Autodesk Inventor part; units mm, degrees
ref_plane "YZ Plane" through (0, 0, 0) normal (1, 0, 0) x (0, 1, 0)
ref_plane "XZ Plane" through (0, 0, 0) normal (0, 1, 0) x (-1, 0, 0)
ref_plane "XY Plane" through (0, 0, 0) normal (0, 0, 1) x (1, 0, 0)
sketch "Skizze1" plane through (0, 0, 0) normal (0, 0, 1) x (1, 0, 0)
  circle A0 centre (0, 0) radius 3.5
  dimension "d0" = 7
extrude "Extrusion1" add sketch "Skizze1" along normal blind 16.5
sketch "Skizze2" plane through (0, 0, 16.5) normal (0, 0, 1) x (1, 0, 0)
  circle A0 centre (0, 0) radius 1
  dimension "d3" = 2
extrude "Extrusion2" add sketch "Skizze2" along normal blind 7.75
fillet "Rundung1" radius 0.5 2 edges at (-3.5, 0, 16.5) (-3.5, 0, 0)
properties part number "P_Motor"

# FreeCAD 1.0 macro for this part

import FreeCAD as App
import Part
import Sketcher

V = App.Vector
Q = App.Units.Quantity


def edges_at(feature, points):
    """Names of the edges that pass closest to the given points."""
    edges = feature.Shape.Edges
    near = lambda p: min(range(len(edges)), key=lambda i: edges[i].distToShape(Part.Vertex(*p))[0])
    return sorted({f"Edge{near(p) + 1}" for p in points})

doc = App.newDocument("Part")
params = doc.addObject("Spreadsheet::Sheet", "Params")
for row, (alias, value) in enumerate([
    ("sketch1_diameter", "7 mm"),
    ("pad1_length", "16.5 mm"),
    ("sketch2_diameter", "2 mm"),
    ("pad2_length", "7.75 mm"),
    ("fillet_radius", "0.5 mm"),
], start=1):
    params.set(f"A{row}", alias)
    params.set(f"B{row}", "=" + value)
    params.setAlias(f"B{row}", alias)

body = doc.addObject("PartDesign::Body", "Body")

# Sketch on XY plane
sketch1 = body.newObject("Sketcher::SketchObject", "Sketch")
sketch1.AttachmentSupport = (doc.getObject("XY_Plane"), [""])
sketch1.MapMode = "FlatFace"
sketch1.addGeometry(Part.Circle(V(0, 0, 0), V(0, 0, 1), 3.5), False)
sketch1.addConstraint([
    Sketcher.Constraint("Coincident", 0, 3, -1, 1),
    Sketcher.Constraint("Diameter", 0, Q("7 mm")),
])
sketch1.setExpression("Constraints[1]", "Params.sketch1_diameter")
pad1 = body.newObject("PartDesign::Pad", "Pad")
pad1.Profile = sketch1
pad1.setExpression("Length", "Params.pad1_length")

# Sketch on XY plane
sketch2 = body.newObject("Sketcher::SketchObject", "Sketch001")
sketch2.AttachmentSupport = (doc.getObject("XY_Plane"), [""])
sketch2.MapMode = "FlatFace"
sketch2.AttachmentOffset = App.Placement(V(0, 0, 16.5), App.Rotation())
sketch2.addGeometry(Part.Circle(V(0, 0, 0), V(0, 0, 1), 1), False)
sketch2.addConstraint([
    Sketcher.Constraint("Coincident", 0, 3, -1, 1),
    Sketcher.Constraint("Diameter", 0, Q("2 mm")),
])
sketch2.setExpression("Constraints[1]", "Params.sketch2_diameter")
pad2 = body.newObject("PartDesign::Pad", "Pad001")
pad2.Profile = sketch2
pad2.setExpression("Length", "Params.pad2_length")
doc.recompute()

fillet = body.newObject("PartDesign::Fillet", "Fillet")
fillet.Base = (pad2, edges_at(pad2, [(-3.5, 0, 16.5), (-3.5, 0, 0)]))
fillet.setExpression("Radius", "Params.fillet_radius")

doc.recompute()
